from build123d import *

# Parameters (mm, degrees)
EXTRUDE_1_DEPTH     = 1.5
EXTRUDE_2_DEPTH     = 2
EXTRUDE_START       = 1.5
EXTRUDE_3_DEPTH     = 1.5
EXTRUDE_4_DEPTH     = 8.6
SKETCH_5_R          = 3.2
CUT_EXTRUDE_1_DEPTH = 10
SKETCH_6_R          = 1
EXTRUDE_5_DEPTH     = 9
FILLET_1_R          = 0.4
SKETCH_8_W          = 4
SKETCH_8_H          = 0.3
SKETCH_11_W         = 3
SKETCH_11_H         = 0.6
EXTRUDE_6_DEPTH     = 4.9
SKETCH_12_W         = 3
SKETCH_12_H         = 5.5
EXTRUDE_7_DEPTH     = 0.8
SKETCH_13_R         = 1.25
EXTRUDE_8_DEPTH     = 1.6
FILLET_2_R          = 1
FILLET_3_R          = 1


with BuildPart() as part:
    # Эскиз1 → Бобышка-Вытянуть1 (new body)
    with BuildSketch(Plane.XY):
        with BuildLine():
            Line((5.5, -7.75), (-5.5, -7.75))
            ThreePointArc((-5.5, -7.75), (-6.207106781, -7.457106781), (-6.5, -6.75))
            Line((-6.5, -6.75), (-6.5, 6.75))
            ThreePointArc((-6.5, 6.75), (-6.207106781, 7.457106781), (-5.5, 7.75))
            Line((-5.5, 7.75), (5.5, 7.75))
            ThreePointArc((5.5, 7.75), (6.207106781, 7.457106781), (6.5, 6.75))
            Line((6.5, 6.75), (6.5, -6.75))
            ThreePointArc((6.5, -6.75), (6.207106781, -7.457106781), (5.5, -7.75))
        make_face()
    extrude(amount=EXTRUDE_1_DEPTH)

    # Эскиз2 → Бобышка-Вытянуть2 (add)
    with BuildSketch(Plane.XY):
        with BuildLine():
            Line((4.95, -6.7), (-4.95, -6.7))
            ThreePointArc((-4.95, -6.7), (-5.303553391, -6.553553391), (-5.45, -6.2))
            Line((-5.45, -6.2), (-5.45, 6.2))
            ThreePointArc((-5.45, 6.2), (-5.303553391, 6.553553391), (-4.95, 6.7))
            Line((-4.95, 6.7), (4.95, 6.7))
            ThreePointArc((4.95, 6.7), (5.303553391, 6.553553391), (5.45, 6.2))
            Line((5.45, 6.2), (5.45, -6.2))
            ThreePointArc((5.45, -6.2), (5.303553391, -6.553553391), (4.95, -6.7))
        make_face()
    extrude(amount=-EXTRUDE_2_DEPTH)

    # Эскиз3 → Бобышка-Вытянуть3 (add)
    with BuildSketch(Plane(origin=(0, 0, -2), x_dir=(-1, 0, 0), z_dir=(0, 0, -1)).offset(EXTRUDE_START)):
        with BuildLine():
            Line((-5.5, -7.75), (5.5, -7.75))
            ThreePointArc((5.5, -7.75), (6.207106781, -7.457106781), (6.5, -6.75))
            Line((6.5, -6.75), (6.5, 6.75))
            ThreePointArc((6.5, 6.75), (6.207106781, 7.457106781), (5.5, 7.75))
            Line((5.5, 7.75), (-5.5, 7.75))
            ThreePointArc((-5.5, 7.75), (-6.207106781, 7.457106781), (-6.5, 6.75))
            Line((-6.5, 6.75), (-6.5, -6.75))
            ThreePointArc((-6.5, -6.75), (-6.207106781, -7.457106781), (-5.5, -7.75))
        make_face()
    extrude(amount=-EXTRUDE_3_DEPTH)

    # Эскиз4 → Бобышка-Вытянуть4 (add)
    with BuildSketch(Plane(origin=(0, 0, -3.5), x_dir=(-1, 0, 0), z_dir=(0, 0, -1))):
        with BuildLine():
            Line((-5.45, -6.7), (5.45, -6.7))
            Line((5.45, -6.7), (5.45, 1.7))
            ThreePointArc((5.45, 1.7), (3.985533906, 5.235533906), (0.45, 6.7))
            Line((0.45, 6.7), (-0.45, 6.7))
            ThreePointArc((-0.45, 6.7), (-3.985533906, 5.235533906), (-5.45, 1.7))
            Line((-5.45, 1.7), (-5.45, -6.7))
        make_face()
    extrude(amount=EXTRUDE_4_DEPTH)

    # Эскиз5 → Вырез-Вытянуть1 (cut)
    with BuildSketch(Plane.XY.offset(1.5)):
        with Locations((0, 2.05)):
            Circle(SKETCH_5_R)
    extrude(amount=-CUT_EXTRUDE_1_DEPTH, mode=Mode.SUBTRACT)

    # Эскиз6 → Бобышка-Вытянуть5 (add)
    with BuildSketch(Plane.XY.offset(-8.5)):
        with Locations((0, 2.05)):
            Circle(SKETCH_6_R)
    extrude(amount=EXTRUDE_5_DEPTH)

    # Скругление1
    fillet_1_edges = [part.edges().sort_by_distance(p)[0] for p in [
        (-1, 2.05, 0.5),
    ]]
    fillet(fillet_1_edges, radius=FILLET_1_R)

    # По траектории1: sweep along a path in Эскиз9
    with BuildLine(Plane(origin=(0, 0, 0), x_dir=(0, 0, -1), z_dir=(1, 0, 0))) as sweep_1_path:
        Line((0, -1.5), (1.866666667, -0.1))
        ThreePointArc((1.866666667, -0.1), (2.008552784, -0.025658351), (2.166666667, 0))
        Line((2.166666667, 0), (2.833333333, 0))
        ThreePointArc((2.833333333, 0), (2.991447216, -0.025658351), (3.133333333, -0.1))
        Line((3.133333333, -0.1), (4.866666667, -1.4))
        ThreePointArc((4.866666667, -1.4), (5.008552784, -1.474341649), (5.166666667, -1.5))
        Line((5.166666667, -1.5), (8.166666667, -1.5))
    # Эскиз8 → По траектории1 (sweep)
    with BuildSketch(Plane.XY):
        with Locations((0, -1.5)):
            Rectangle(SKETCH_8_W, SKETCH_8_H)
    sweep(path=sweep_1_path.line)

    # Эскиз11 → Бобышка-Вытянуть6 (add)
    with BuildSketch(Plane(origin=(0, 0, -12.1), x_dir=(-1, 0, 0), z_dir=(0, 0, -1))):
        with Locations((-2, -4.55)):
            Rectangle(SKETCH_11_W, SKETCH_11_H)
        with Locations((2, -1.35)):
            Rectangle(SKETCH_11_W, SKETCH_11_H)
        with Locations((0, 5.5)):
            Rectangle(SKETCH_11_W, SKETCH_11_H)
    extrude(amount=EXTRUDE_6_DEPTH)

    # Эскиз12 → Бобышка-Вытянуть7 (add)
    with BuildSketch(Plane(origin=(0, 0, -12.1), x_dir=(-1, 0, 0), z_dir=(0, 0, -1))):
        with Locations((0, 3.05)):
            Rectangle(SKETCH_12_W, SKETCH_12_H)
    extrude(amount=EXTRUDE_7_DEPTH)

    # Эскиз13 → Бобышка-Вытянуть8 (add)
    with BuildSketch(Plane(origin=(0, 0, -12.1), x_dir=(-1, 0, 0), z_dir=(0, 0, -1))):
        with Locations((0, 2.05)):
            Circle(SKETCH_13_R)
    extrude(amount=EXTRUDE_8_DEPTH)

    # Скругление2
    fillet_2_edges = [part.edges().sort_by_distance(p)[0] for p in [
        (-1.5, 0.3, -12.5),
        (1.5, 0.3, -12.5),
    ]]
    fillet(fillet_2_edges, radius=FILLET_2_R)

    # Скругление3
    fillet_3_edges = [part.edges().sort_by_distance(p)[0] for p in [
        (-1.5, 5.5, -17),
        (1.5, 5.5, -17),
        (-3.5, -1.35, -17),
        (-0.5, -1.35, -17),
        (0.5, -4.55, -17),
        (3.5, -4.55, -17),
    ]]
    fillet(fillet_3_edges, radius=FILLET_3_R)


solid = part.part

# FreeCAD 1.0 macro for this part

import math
import FreeCAD as App
import Part
import Sketcher

V = App.Vector
Q = App.Units.Quantity


def edges_at(feature, points):
    """Names of the edges that pass closest to the given points."""
    edges = feature.Shape.Edges
    near = lambda p: min(range(len(edges)), key=lambda i: edges[i].distToShape(Part.Vertex(*p))[0])
    return sorted({f"Edge{near(p) + 1}" for p in points})


def add_polygon(sketch, points):
    """Adds a closed chain of lines whose ends are joined by coincident constraints."""
    first, n = sketch.GeometryCount, len(points)
    for a, b in zip(points, points[1:] + points[:1]):
        sketch.addGeometry(Part.LineSegment(App.Vector(*a, 0), App.Vector(*b, 0)), False)
    for i in range(n):
        sketch.addConstraint(Sketcher.Constraint("Coincident", first + i, 2, first + (i + 1) % n, 1))

doc = App.newDocument("Part")
body = doc.addObject("PartDesign::Body", "Body")

# Sketch on XY plane
sketch1 = body.newObject("Sketcher::SketchObject", "Sketch")
sketch1.AttachmentSupport = (doc.getObject("XY_Plane"), [""])
sketch1.MapMode = "FlatFace"
sketch1.addGeometry([
    Part.LineSegment(V(-5.5, -7.8, 0), V(5.5, -7.8, 0)),  # 0
    Part.ArcOfCircle(Part.Circle(V(5.5, -6.7, 0), V(0, 0, 1), 1), math.radians(-90), math.radians(0)),  # 1
    Part.LineSegment(V(6.5, -6.8, 0), V(6.5, 6.8, 0)),  # 2
    Part.ArcOfCircle(Part.Circle(V(5.5, 6.7, 0), V(0, 0, 1), 1), math.radians(0), math.radians(90)),  # 3
    Part.LineSegment(V(5.5, 7.8, 0), V(-5.5, 7.8, 0)),  # 4
    Part.ArcOfCircle(Part.Circle(V(-5.5, 6.7, 0), V(0, 0, 1), 1), math.radians(90), math.radians(180)),  # 5
    Part.LineSegment(V(-6.5, 6.8, 0), V(-6.5, -6.8, 0)),  # 6
    Part.ArcOfCircle(Part.Circle(V(-5.5, -6.7, 0), V(0, 0, 1), 1), math.radians(-180), math.radians(-90)),  # 7
], False)
sketch1.addConstraint([
    Sketcher.Constraint("Tangent", 0, 2, 1, 1),
    Sketcher.Constraint("Tangent", 1, 2, 2, 1),
    Sketcher.Constraint("Tangent", 2, 2, 3, 1),
    Sketcher.Constraint("Tangent", 3, 2, 4, 1),
    Sketcher.Constraint("Tangent", 4, 2, 5, 1),
    Sketcher.Constraint("Tangent", 5, 2, 6, 1),
    Sketcher.Constraint("Tangent", 6, 2, 7, 1),
    Sketcher.Constraint("Tangent", 7, 2, 0, 1),
    Sketcher.Constraint("Horizontal", 0),
    Sketcher.Constraint("Vertical", 2),
    Sketcher.Constraint("Horizontal", 4),
    Sketcher.Constraint("Vertical", 6),
    Sketcher.Constraint("Equal", 1, 3),
    Sketcher.Constraint("Equal", 3, 5),
    Sketcher.Constraint("Equal", 5, 7),
    Sketcher.Constraint("Symmetric", 1, 3, 5, 3, -1, 1),
    Sketcher.Constraint("Radius", 1, Q("1 mm")),
    Sketcher.Constraint("DistanceX", 0, 1, 0, 2, Q("11 mm")),
    Sketcher.Constraint("DistanceY", 2, 1, 2, 2, Q("13.5 mm")),
])
pad1 = body.newObject("PartDesign::Pad", "Pad")
pad1.Profile = sketch1
pad1.Length = 1.5

# Sketch on XY plane
sketch2 = body.newObject("Sketcher::SketchObject", "Sketch001")
sketch2.AttachmentSupport = (doc.getObject("XY_Plane"), [""])
sketch2.MapMode = "FlatFace"
sketch2.addGeometry([
    Part.LineSegment(V(-4.95, -6.7, 0), V(4.95, -6.7, 0)),  # 0
    Part.ArcOfCircle(Part.Circle(V(4.95, -6.2, 0), V(0, 0, 1), 0.5), math.radians(-90), math.radians(0)),  # 1
    Part.LineSegment(V(5.45, -6.2, 0), V(5.45, 6.2, 0)),  # 2
    Part.ArcOfCircle(Part.Circle(V(4.95, 6.2, 0), V(0, 0, 1), 0.5), math.radians(0), math.radians(90)),  # 3
    Part.LineSegment(V(4.95, 6.7, 0), V(-4.95, 6.7, 0)),  # 4
    Part.ArcOfCircle(Part.Circle(V(-4.95, 6.2, 0), V(0, 0, 1), 0.5), math.radians(90), math.radians(180)),  # 5
    Part.LineSegment(V(-5.45, 6.2, 0), V(-5.45, -6.2, 0)),  # 6
    Part.ArcOfCircle(Part.Circle(V(-4.95, -6.2, 0), V(0, 0, 1), 0.5), math.radians(180), math.radians(270)),  # 7
], False)
sketch2.addConstraint([
    Sketcher.Constraint("Tangent", 0, 2, 1, 1),
    Sketcher.Constraint("Tangent", 1, 2, 2, 1),
    Sketcher.Constraint("Tangent", 2, 2, 3, 1),
    Sketcher.Constraint("Tangent", 3, 2, 4, 1),
    Sketcher.Constraint("Tangent", 4, 2, 5, 1),
    Sketcher.Constraint("Tangent", 5, 2, 6, 1),
    Sketcher.Constraint("Tangent", 6, 2, 7, 1),
    Sketcher.Constraint("Tangent", 7, 2, 0, 1),
    Sketcher.Constraint("Horizontal", 0),
    Sketcher.Constraint("Vertical", 2),
    Sketcher.Constraint("Horizontal", 4),
    Sketcher.Constraint("Vertical", 6),
    Sketcher.Constraint("Equal", 1, 3),
    Sketcher.Constraint("Equal", 3, 5),
    Sketcher.Constraint("Equal", 5, 7),
    Sketcher.Constraint("Symmetric", 1, 3, 5, 3, -1, 1),
    Sketcher.Constraint("Radius", 1, Q("0.5 mm")),
    Sketcher.Constraint("DistanceX", 0, 1, 0, 2, Q("9.9 mm")),
    Sketcher.Constraint("DistanceY", 2, 1, 2, 2, Q("12.4 mm")),
])
pad2 = body.newObject("PartDesign::Pad", "Pad001")
pad2.Profile = sketch2
pad2.Length = 2
pad2.Reversed = True

# Sketch on XY plane
sketch3 = body.newObject("Sketcher::SketchObject", "Sketch002")
sketch3.AttachmentSupport = (doc.getObject("XY_Plane"), [""])
sketch3.MapMode = "FlatFace"
sketch3.AttachmentOffset = App.Placement(V(0, 0, -3.5), App.Rotation())
sketch3.addGeometry([
    Part.LineSegment(V(5.5, -7.8, 0), V(-5.5, -7.8, 0)),  # 0
    Part.ArcOfCircle(Part.Circle(V(-5.5, -6.7, 0), V(0, 0, 1), 1), math.radians(-180), math.radians(-90)),  # 1
    Part.LineSegment(V(-6.5, -6.8, 0), V(-6.5, 6.8, 0)),  # 2
    Part.ArcOfCircle(Part.Circle(V(-5.5, 6.7, 0), V(0, 0, 1), 1), math.radians(90), math.radians(180)),  # 3
    Part.LineSegment(V(-5.5, 7.8, 0), V(5.5, 7.8, 0)),  # 4
    Part.ArcOfCircle(Part.Circle(V(5.5, 6.7, 0), V(0, 0, 1), 1), math.radians(0), math.radians(90)),  # 5
    Part.LineSegment(V(6.5, 6.8, 0), V(6.5, -6.8, 0)),  # 6
    Part.ArcOfCircle(Part.Circle(V(5.5, -6.7, 0), V(0, 0, 1), 1), math.radians(-90), math.radians(0)),  # 7
], False)
sketch3.addConstraint([
    Sketcher.Constraint("Tangent", 0, 2, 1, 2),
    Sketcher.Constraint("Tangent", 1, 1, 2, 1),
    Sketcher.Constraint("Tangent", 2, 2, 3, 2),
    Sketcher.Constraint("Tangent", 3, 1, 4, 1),
    Sketcher.Constraint("Tangent", 4, 2, 5, 2),
    Sketcher.Constraint("Tangent", 5, 1, 6, 1),
    Sketcher.Constraint("Tangent", 6, 2, 7, 2),
    Sketcher.Constraint("Tangent", 7, 1, 0, 1),
    Sketcher.Constraint("Horizontal", 0),
    Sketcher.Constraint("Vertical", 2),
    Sketcher.Constraint("Horizontal", 4),
    Sketcher.Constraint("Vertical", 6),
    Sketcher.Constraint("Equal", 1, 3),
    Sketcher.Constraint("Equal", 3, 5),
    Sketcher.Constraint("Equal", 5, 7),
    Sketcher.Constraint("Symmetric", 1, 3, 5, 3, -1, 1),
    Sketcher.Constraint("Radius", 1, Q("1 mm")),
    Sketcher.Constraint("DistanceX", 0, 2, 0, 1, Q("11 mm")),
    Sketcher.Constraint("DistanceY", 2, 1, 2, 2, Q("13.5 mm")),
])
pad3 = body.newObject("PartDesign::Pad", "Pad002")
pad3.Profile = sketch3
pad3.Length = 1.5

# Sketch on XY plane
sketch4 = body.newObject("Sketcher::SketchObject", "Sketch003")
sketch4.AttachmentSupport = (doc.getObject("XY_Plane"), [""])
sketch4.MapMode = "FlatFace"
sketch4.AttachmentOffset = App.Placement(V(0, 0, -3.5), App.Rotation())
sketch4.addGeometry([
    Part.LineSegment(V(5.5, -6.7, 0), V(-5.5, -6.7, 0)),  # 0
    Part.LineSegment(V(-5.5, -6.7, 0), V(-5.5, 1.7, 0)),  # 1
    Part.ArcOfCircle(Part.Circle(V(-0.5, 1.7, 0), V(0, 0, 1), 5), math.radians(90), math.radians(180)),  # 2
    Part.LineSegment(V(-0.5, 6.7, 0), V(0.5, 6.7, 0)),  # 3
    Part.ArcOfCircle(Part.Circle(V(0.5, 1.7, 0), V(0, 0, 1), 5), math.radians(0), math.radians(90)),  # 4
    Part.LineSegment(V(5.5, 1.7, 0), V(5.5, -6.7, 0)),  # 5
], False)
sketch4.addConstraint([
    Sketcher.Constraint("Coincident", 0, 2, 1, 1),
    Sketcher.Constraint("Tangent", 1, 2, 2, 2),
    Sketcher.Constraint("Tangent", 2, 1, 3, 1),
    Sketcher.Constraint("Tangent", 3, 2, 4, 2),
    Sketcher.Constraint("Tangent", 4, 1, 5, 1),
    Sketcher.Constraint("Coincident", 5, 2, 0, 1),
    Sketcher.Constraint("Horizontal", 0),
    Sketcher.Constraint("Vertical", 1),
    Sketcher.Constraint("Horizontal", 3),
    Sketcher.Constraint("Vertical", 5),
    Sketcher.Constraint("Equal", 2, 4),
    Sketcher.Constraint("Radius", 2, Q("5 mm")),
    Sketcher.Constraint("DistanceX", 0, 2, 0, 1, Q("10.9 mm")),
    Sketcher.Constraint("DistanceY", 1, 1, 1, 2, Q("8.4 mm")),
    Sketcher.Constraint("DistanceY", -1, 1, 2, 3, Q("1.7 mm")),
    Sketcher.Constraint("DistanceX", 2, 3, -1, 1, Q("0.45 mm")),
])
pad4 = body.newObject("PartDesign::Pad", "Pad003")
pad4.Profile = sketch4
pad4.Length = 8.6
pad4.Reversed = True

# Sketch on XY plane
sketch5 = body.newObject("Sketcher::SketchObject", "Sketch004")
sketch5.AttachmentSupport = (doc.getObject("XY_Plane"), [""])
sketch5.MapMode = "FlatFace"
sketch5.AttachmentOffset = App.Placement(V(0, 0, 1.5), App.Rotation())
sketch5.addGeometry(Part.Circle(V(0, 2, 0), V(0, 0, 1), 3.2), False)
sketch5.addConstraint([
    Sketcher.Constraint("PointOnObject", 0, 3, -2),
    Sketcher.Constraint("Diameter", 0, Q("6.4 mm")),
    Sketcher.Constraint("DistanceY", -1, 1, 0, 3, Q("2.05 mm")),
])
pocket1 = body.newObject("PartDesign::Pocket", "Pocket")
pocket1.Profile = sketch5
pocket1.Length = 10

# Sketch on XY plane
sketch6 = body.newObject("Sketcher::SketchObject", "Sketch005")
sketch6.AttachmentSupport = (doc.getObject("XY_Plane"), [""])
sketch6.MapMode = "FlatFace"
sketch6.AttachmentOffset = App.Placement(V(0, 0, -8.5), App.Rotation())
sketch6.addGeometry(Part.Circle(V(0, 2, 0), V(0, 0, 1), 1), False)
sketch6.addConstraint([
    Sketcher.Constraint("PointOnObject", 0, 3, -2),
    Sketcher.Constraint("Diameter", 0, Q("2 mm")),
    Sketcher.Constraint("DistanceY", -1, 1, 0, 3, Q("2.05 mm")),
])
pad5 = body.newObject("PartDesign::Pad", "Pad004")
pad5.Profile = sketch6
pad5.Length = 9
doc.recompute()

fillet = body.newObject("PartDesign::Fillet", "Fillet")
fillet.Base = (pad5, edges_at(pad5, [(-1, 2.05, 0.5)]))
fillet.Radius = 0.4

# Sketch on XY plane
sketch7 = body.newObject("Sketcher::SketchObject", "Sketch006")
sketch7.AttachmentSupport = (doc.getObject("XY_Plane"), [""])
sketch7.MapMode = "FlatFace"
add_polygon(sketch7, [(-2, -1.35), (-2, -1.65), (2, -1.65), (2, -1.35)])  # lines 0-3
sketch7.addConstraint([
    Sketcher.Constraint("Vertical", 0),
    Sketcher.Constraint("Horizontal", 1),
    Sketcher.Constraint("Vertical", 2),
    Sketcher.Constraint("Horizontal", 3),
    Sketcher.Constraint("DistanceX", 1, 1, 1, 2, Q("4 mm")),
    Sketcher.Constraint("DistanceY", 0, 2, 0, 1, Q("0.3 mm")),
    Sketcher.Constraint("DistanceX", 0, 2, -1, 1, Q("2 mm")),
    Sketcher.Constraint("DistanceY", 0, 2, -1, 1, Q("1.65 mm")),
])

# Sketch on YZ plane
sketch8 = body.newObject("Sketcher::SketchObject", "Sketch007")
sketch8.AttachmentSupport = (doc.getObject("YZ_Plane"), [""])
sketch8.MapMode = "FlatFace"
sketch8.addGeometry([
    Part.LineSegment(V(-1.5, 0, 0), V(-0.1, -1.87, 0)),  # 0
    Part.ArcOfCircle(Part.Circle(V(-0.5, -2.17, 0), V(0, 0, 1), 0.5), math.radians(0), math.radians(37)),  # 1
    Part.LineSegment(V(0, -2.17, 0), V(0, -2.83, 0)),  # 2
    Part.ArcOfCircle(Part.Circle(V(-0.5, -2.83, 0), V(0, 0, 1), 0.5), math.radians(-37), math.radians(0)),  # 3
    Part.LineSegment(V(-0.1, -3.13, 0), V(-1.4, -4.87, 0)),  # 4
    Part.ArcOfCircle(Part.Circle(V(-1, -5.17, 0), V(0, 0, 1), 0.5), math.radians(143), math.radians(180)),  # 5
    Part.LineSegment(V(-1.5, -5.17, 0), V(-1.5, -8.17, 0)),  # 6
], False)
sketch8.addConstraint([
    Sketcher.Constraint("Tangent", 0, 2, 1, 2),
    Sketcher.Constraint("Tangent", 1, 1, 2, 1),
    Sketcher.Constraint("Tangent", 2, 2, 3, 2),
    Sketcher.Constraint("Tangent", 3, 1, 4, 1),
    Sketcher.Constraint("Tangent", 4, 2, 5, 1),
    Sketcher.Constraint("Tangent", 5, 2, 6, 1),
    Sketcher.Constraint("Vertical", 2),
    Sketcher.Constraint("Vertical", 6),
    Sketcher.Constraint("Equal", 1, 3),
    Sketcher.Constraint("Equal", 3, 5),
    Sketcher.Constraint("PointOnObject", 0, 1, -1),
    Sketcher.Constraint("PointOnObject", 1, 1, -2),
    Sketcher.Constraint("Vertical", 0, 2, 3, 1),
    Sketcher.Constraint("Vertical", 0, 1, 5, 2),
    Sketcher.Constraint("Radius", 1, Q("0.5 mm")),
    Sketcher.Constraint("DistanceY", 6, 2, 6, 1, Q("3 mm")),
    Sketcher.Constraint("DistanceX", 5, 3, -1, 1, Q("1 mm")),
    Sketcher.Constraint("DistanceY", 5, 3, 1, 3, Q("3 mm")),
    Sketcher.Constraint("DistanceX", 0, 2, -1, 1, Q("0.1 mm")),
])
doc.recompute()

additivepipe = body.newObject("PartDesign::AdditivePipe", "AdditivePipe")
additivepipe.Profile = sketch7
additivepipe.Spine = (sketch8, ["Edge1", "Edge2", "Edge3", "Edge4", "Edge5", "Edge6", "Edge7"])

# Sketch on XY plane
sketch9 = body.newObject("Sketcher::SketchObject", "Sketch008")
sketch9.AttachmentSupport = (doc.getObject("XY_Plane"), [""])
sketch9.MapMode = "FlatFace"
sketch9.AttachmentOffset = App.Placement(V(0, 0, -12.1), App.Rotation())
add_polygon(sketch9, [(3.5, -4.2), (3.5, -4.8), (0.5, -4.8), (0.5, -4.2)])  # lines 0-3
add_polygon(sketch9, [(-0.5, -1.1), (-0.5, -1.6), (-3.5, -1.6), (-3.5, -1.1)])  # lines 4-7
add_polygon(sketch9, [(1.5, 5.8), (1.5, 5.2), (-1.5, 5.2), (-1.5, 5.8)])  # lines 8-11
sketch9.addConstraint([
    Sketcher.Constraint("Vertical", 0),
    Sketcher.Constraint("Horizontal", 1),
    Sketcher.Constraint("Vertical", 2),
    Sketcher.Constraint("Horizontal", 3),
    Sketcher.Constraint("Vertical", 4),
    Sketcher.Constraint("Horizontal", 5),
    Sketcher.Constraint("Vertical", 6),
    Sketcher.Constraint("Horizontal", 7),
    Sketcher.Constraint("Vertical", 8),
    Sketcher.Constraint("Horizontal", 9),
    Sketcher.Constraint("Vertical", 10),
    Sketcher.Constraint("Horizontal", 11),
    Sketcher.Constraint("Equal", 3, 5),
    Sketcher.Constraint("Equal", 7, 9),
    Sketcher.Constraint("Equal", 2, 4),
    Sketcher.Constraint("Equal", 6, 8),
    Sketcher.Constraint("DistanceX", 1, 2, 1, 1, Q("3 mm")),
    Sketcher.Constraint("DistanceY", 0, 2, 0, 1, Q("0.6 mm")),
    Sketcher.Constraint("DistanceX", 4, 2, 2, 2, Q("1 mm")),
    Sketcher.Constraint("DistanceX", 7, 2, 8, 2, Q("2 mm")),
    Sketcher.Constraint("DistanceX", -1, 1, 0, 2, Q("3.5 mm")),
    Sketcher.Constraint("DistanceY", -1, 1, 8, 2, Q("5.2 mm")),
    Sketcher.Constraint("DistanceY", 2, 2, 4, 2, Q("2.6 mm")),
    Sketcher.Constraint("DistanceY", 0, 2, -1, 1, Q("4.85 mm")),
])
pad6 = body.newObject("PartDesign::Pad", "Pad005")
pad6.Profile = sketch9
pad6.Length = 4.9
pad6.Reversed = True

# Sketch on XY plane
sketch10 = body.newObject("Sketcher::SketchObject", "Sketch009")
sketch10.AttachmentSupport = (doc.getObject("XY_Plane"), [""])
sketch10.MapMode = "FlatFace"
sketch10.AttachmentOffset = App.Placement(V(0, 0, -12.1), App.Rotation())
add_polygon(sketch10, [(1.5, 5.8), (1.5, 0.3), (-1.5, 0.3), (-1.5, 5.8)])  # lines 0-3
sketch10.addConstraint([
    Sketcher.Constraint("Vertical", 0),
    Sketcher.Constraint("Horizontal", 1),
    Sketcher.Constraint("Vertical", 2),
    Sketcher.Constraint("Horizontal", 3),
    Sketcher.Constraint("DistanceX", 1, 2, 1, 1, Q("3 mm")),
    Sketcher.Constraint("DistanceY", 0, 2, 0, 1, Q("5.5 mm")),
    Sketcher.Constraint("DistanceX", -1, 1, 0, 2, Q("1.5 mm")),
    Sketcher.Constraint("DistanceY", -1, 1, 0, 2, Q("0.3 mm")),
])
pad7 = body.newObject("PartDesign::Pad", "Pad006")
pad7.Profile = sketch10
pad7.Length = 0.8
pad7.Reversed = True

# Sketch on XY plane
sketch11 = body.newObject("Sketcher::SketchObject", "Sketch010")
sketch11.AttachmentSupport = (doc.getObject("XY_Plane"), [""])
sketch11.MapMode = "FlatFace"
sketch11.AttachmentOffset = App.Placement(V(0, 0, -12.1), App.Rotation())
sketch11.addGeometry(Part.Circle(V(0, 2, 0), V(0, 0, 1), 1.2), False)
sketch11.addConstraint([
    Sketcher.Constraint("PointOnObject", 0, 3, -2),
    Sketcher.Constraint("Diameter", 0, Q("2.5 mm")),
    Sketcher.Constraint("DistanceY", -1, 1, 0, 3, Q("2.05 mm")),
])
pad8 = body.newObject("PartDesign::Pad", "Pad007")
pad8.Profile = sketch11
pad8.Length = 1.6
pad8.Reversed = True
doc.recompute()

fillet2 = body.newObject("PartDesign::Fillet", "Fillet001")
fillet2.Base = (pad8, edges_at(pad8, [(-1.5, 0.3, -12.5), (1.5, 0.3, -12.5)]))
fillet2.Radius = 1
doc.recompute()

fillet3 = body.newObject("PartDesign::Fillet", "Fillet002")
fillet3.Base = (fillet2, edges_at(fillet2, [
    (-1.5, 5.5, -17),
    (1.5, 5.5, -17),
    (-3.5, -1.35, -17),
    (-0.5, -1.35, -17),
    (0.5, -4.55, -17),
    (3.5, -4.55, -17),
]))
fillet3.Radius = 1

doc.recompute()
